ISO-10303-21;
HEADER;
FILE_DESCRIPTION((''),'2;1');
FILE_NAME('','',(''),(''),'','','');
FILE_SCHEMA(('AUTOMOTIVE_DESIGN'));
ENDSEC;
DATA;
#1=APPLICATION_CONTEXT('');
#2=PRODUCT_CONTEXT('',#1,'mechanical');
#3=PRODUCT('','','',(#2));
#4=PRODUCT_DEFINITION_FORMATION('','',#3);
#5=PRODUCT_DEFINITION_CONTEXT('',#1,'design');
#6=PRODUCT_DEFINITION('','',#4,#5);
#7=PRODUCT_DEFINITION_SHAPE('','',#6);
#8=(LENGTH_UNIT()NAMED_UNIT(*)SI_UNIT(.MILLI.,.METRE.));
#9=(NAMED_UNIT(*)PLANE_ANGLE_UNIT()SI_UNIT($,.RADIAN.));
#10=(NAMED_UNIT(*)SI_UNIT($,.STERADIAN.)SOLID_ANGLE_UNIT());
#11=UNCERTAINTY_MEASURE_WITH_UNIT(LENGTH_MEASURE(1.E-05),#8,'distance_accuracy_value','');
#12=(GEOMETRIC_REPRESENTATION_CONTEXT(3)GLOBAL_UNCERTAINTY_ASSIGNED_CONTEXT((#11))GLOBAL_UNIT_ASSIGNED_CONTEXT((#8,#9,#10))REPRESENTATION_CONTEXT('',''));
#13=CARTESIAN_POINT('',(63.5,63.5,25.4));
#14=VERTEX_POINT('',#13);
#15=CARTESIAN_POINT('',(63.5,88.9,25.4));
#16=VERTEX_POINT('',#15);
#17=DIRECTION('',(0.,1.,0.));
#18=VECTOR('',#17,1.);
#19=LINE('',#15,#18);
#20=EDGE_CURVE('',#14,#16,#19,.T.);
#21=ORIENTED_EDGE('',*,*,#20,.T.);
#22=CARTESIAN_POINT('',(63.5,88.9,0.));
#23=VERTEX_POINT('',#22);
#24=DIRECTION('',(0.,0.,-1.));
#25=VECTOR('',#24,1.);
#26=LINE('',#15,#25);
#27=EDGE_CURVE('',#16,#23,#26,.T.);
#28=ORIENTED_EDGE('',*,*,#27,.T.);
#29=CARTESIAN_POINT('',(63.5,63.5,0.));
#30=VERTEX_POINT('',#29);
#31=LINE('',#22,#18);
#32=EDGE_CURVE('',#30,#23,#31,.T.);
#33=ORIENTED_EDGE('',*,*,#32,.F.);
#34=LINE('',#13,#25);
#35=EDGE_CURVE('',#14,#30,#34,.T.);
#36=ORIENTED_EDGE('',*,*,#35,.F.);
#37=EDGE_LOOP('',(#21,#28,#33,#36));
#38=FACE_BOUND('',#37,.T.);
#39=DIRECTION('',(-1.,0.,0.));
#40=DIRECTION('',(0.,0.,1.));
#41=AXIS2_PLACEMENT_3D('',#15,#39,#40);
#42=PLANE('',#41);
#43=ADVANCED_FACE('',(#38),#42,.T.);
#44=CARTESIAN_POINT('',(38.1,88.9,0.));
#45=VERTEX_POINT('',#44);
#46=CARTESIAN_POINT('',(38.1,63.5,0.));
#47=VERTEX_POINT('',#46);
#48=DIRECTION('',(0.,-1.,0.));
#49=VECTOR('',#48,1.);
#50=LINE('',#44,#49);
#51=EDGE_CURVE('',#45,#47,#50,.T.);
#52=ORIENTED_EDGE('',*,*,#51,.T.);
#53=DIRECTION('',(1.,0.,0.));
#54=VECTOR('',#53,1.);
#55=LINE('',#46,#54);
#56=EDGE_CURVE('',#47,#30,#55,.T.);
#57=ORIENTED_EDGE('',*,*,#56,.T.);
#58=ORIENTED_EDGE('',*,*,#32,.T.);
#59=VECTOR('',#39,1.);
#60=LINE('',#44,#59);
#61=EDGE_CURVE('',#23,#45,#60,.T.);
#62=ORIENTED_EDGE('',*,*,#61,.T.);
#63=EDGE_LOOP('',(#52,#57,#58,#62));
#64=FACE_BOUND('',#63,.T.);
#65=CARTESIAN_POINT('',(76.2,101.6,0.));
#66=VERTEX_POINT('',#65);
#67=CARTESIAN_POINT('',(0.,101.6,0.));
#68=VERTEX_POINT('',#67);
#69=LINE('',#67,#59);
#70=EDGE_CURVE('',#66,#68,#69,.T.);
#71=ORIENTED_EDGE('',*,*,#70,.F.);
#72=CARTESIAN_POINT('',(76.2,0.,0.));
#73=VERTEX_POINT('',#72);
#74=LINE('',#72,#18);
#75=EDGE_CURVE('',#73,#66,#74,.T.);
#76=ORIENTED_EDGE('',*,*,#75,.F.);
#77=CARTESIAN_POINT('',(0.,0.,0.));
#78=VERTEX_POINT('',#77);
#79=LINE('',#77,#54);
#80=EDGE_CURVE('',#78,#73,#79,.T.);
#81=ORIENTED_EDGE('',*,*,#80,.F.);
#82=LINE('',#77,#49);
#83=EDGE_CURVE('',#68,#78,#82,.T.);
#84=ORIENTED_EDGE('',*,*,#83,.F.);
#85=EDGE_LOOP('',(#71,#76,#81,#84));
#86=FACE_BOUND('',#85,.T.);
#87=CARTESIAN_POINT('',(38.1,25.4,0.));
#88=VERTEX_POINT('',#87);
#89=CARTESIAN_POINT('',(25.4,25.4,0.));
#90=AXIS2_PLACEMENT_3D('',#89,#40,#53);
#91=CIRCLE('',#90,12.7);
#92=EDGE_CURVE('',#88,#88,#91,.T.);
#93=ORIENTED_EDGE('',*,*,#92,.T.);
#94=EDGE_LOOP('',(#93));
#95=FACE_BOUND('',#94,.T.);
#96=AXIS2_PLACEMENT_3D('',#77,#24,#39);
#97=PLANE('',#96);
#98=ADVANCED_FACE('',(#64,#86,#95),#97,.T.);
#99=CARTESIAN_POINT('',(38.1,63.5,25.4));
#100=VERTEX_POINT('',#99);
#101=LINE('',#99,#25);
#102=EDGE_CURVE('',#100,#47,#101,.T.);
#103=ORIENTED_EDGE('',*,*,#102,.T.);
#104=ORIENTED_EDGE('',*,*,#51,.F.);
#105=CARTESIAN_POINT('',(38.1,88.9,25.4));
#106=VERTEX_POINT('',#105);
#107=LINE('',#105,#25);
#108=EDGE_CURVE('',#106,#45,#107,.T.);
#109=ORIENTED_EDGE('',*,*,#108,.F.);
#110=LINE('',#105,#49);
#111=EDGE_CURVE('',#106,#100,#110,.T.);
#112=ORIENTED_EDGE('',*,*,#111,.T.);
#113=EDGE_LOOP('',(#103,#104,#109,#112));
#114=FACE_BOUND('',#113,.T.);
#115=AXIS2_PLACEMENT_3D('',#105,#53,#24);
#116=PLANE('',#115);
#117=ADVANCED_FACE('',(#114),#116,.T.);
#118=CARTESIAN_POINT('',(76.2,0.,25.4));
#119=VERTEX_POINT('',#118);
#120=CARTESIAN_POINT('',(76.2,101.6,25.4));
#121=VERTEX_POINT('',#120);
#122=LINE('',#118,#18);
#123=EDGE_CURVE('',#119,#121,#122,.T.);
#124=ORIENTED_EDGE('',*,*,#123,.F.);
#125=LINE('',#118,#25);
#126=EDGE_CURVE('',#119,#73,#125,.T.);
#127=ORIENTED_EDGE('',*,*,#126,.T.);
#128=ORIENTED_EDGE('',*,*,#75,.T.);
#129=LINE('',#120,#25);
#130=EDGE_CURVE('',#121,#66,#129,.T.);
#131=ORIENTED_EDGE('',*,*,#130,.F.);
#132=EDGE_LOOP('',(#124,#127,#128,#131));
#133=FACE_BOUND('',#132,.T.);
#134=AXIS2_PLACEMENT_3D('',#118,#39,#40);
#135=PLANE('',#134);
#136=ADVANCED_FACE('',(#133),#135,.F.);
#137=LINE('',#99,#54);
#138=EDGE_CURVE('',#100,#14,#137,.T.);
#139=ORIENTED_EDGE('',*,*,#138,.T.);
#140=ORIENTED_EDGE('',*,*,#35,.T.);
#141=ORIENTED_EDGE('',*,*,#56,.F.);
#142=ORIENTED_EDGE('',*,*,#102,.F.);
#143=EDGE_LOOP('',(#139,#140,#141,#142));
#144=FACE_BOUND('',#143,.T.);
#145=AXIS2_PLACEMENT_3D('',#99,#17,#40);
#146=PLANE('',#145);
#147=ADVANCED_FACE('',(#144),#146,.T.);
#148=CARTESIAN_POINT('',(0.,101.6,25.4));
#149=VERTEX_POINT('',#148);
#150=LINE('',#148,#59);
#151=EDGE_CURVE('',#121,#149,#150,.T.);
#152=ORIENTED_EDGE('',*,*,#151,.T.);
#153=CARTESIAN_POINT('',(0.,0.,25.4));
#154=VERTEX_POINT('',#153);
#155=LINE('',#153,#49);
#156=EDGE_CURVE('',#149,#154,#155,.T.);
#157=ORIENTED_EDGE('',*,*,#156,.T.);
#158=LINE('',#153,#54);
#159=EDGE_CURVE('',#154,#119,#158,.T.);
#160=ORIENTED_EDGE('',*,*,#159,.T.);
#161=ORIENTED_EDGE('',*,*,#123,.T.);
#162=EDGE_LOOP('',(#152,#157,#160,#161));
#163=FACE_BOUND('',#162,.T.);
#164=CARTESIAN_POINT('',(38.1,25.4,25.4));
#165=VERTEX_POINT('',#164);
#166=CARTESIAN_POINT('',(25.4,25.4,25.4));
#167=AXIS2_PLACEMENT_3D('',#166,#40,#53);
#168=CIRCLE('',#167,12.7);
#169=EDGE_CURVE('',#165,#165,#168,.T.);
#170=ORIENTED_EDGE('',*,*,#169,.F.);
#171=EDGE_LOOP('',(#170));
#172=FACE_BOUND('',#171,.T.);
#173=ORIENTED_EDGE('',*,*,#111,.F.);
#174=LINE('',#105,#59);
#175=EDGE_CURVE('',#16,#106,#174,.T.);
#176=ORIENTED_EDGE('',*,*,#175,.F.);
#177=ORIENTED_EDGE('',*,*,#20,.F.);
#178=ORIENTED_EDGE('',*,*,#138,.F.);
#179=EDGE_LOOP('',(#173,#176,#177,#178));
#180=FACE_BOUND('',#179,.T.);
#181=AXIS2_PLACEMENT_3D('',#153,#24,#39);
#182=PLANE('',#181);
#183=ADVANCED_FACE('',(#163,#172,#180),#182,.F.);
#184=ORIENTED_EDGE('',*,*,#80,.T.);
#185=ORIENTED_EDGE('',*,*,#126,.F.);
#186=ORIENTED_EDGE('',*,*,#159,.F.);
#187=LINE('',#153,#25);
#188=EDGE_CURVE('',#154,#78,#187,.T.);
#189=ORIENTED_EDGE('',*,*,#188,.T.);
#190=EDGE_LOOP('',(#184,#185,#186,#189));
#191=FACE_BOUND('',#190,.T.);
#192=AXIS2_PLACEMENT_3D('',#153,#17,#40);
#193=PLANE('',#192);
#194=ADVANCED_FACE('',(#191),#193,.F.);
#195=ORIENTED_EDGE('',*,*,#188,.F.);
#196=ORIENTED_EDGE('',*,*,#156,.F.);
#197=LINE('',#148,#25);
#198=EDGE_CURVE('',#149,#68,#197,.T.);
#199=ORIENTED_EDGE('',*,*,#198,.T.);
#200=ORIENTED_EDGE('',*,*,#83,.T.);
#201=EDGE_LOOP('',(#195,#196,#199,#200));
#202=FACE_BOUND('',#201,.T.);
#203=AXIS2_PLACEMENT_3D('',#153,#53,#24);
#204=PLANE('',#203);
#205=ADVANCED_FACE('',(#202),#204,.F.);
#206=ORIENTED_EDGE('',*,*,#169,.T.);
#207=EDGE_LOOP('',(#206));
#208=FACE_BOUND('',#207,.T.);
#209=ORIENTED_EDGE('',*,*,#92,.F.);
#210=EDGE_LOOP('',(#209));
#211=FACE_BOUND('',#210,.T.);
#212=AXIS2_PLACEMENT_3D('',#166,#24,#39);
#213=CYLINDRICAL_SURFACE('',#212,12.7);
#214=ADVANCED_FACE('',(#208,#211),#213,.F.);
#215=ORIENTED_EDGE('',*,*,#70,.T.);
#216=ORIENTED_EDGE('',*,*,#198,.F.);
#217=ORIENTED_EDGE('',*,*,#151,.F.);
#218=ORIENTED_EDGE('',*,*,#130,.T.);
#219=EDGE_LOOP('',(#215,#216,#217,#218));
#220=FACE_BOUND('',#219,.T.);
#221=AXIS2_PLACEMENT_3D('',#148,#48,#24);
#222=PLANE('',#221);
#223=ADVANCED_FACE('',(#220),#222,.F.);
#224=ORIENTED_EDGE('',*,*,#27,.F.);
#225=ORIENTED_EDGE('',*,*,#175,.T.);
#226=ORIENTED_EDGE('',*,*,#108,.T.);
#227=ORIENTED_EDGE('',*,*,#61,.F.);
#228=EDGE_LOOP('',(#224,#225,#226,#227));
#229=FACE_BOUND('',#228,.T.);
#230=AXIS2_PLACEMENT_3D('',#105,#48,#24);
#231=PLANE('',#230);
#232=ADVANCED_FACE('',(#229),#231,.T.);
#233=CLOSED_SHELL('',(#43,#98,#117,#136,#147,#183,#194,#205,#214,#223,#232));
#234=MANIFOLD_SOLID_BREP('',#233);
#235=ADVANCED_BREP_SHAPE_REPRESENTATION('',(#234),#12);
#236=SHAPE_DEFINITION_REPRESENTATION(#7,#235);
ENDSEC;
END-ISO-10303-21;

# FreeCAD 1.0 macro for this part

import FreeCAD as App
import Part
import Sketcher
from FreeCAD import Vector
Q = App.Units.Quantity

doc = App.newDocument("Part")
body = doc.addObject("PartDesign::Body", "Body")

# Sketch on XY plane
sketch1 = doc.addObject("Sketcher::SketchObject", "Sketch")
body.addObject(sketch1)
sketch1.AttachmentSupport = (doc.XY_Plane, [""])
sketch1.MapMode = "FlatFace"
sketch1.addGeometry([
    Part.LineSegment(Vector(0, 102, 0), Vector(0, 0, 0)),  # 0
    Part.LineSegment(Vector(0, 0, 0), Vector(76, 0, 0)),  # 1
    Part.LineSegment(Vector(76, 0, 0), Vector(76, 102, 0)),  # 2
    Part.LineSegment(Vector(76, 102, 0), Vector(0, 102, 0)),  # 3
    Part.Circle(Vector(25, 25, 0), Vector(0, 0, 1), 13),  # 4
    Part.LineSegment(Vector(64, 64, 0), Vector(38, 64, 0)),  # 5
    Part.LineSegment(Vector(38, 64, 0), Vector(38, 89, 0)),  # 6
    Part.LineSegment(Vector(38, 89, 0), Vector(64, 89, 0)),  # 7
    Part.LineSegment(Vector(64, 89, 0), Vector(64, 64, 0)),  # 8
], False)
sketch1.addConstraint([
    Sketcher.Constraint("Coincident", 0, 2, 1, 1),
    Sketcher.Constraint("Coincident", 1, 2, 2, 1),
    Sketcher.Constraint("Coincident", 2, 2, 3, 1),
    Sketcher.Constraint("Coincident", 3, 2, 0, 1),
    Sketcher.Constraint("Coincident", 5, 2, 6, 1),
    Sketcher.Constraint("Coincident", 6, 2, 7, 1),
    Sketcher.Constraint("Coincident", 7, 2, 8, 1),
    Sketcher.Constraint("Coincident", 8, 2, 5, 1),
    Sketcher.Constraint("Vertical", 0),
    Sketcher.Constraint("Horizontal", 1),
    Sketcher.Constraint("Vertical", 2),
    Sketcher.Constraint("Horizontal", 3),
    Sketcher.Constraint("Horizontal", 5),
    Sketcher.Constraint("Vertical", 6),
    Sketcher.Constraint("Horizontal", 7),
    Sketcher.Constraint("Vertical", 8),
    Sketcher.Constraint("Coincident", 0, 2, -1, 1),
    Sketcher.Constraint("Equal", 7, 6),
    Sketcher.Constraint("Diameter", 4, Q("1 in")),
    Sketcher.Constraint("DistanceX", 1, 1, 1, 2, Q("3 in")),
    Sketcher.Constraint("DistanceX", 5, 2, 5, 1, Q("1 in")),
    Sketcher.Constraint("DistanceY", 0, 2, 0, 1, Q("4 in")),
    Sketcher.Constraint("DistanceX", -1, 1, 4, 3, Q("1 in")),
    Sketcher.Constraint("DistanceY", -1, 1, 4, 3, Q("1 in")),
    Sketcher.Constraint("DistanceX", -1, 1, 5, 2, Q("1.5 in")),
    Sketcher.Constraint("DistanceY", -1, 1, 5, 2, Q("2.5 in")),
])
pad1 = doc.addObject("PartDesign::Pad", "Pad")
body.addObject(pad1)
pad1.Profile = sketch1
pad1.Length = Q("1 in")

doc.recompute()
